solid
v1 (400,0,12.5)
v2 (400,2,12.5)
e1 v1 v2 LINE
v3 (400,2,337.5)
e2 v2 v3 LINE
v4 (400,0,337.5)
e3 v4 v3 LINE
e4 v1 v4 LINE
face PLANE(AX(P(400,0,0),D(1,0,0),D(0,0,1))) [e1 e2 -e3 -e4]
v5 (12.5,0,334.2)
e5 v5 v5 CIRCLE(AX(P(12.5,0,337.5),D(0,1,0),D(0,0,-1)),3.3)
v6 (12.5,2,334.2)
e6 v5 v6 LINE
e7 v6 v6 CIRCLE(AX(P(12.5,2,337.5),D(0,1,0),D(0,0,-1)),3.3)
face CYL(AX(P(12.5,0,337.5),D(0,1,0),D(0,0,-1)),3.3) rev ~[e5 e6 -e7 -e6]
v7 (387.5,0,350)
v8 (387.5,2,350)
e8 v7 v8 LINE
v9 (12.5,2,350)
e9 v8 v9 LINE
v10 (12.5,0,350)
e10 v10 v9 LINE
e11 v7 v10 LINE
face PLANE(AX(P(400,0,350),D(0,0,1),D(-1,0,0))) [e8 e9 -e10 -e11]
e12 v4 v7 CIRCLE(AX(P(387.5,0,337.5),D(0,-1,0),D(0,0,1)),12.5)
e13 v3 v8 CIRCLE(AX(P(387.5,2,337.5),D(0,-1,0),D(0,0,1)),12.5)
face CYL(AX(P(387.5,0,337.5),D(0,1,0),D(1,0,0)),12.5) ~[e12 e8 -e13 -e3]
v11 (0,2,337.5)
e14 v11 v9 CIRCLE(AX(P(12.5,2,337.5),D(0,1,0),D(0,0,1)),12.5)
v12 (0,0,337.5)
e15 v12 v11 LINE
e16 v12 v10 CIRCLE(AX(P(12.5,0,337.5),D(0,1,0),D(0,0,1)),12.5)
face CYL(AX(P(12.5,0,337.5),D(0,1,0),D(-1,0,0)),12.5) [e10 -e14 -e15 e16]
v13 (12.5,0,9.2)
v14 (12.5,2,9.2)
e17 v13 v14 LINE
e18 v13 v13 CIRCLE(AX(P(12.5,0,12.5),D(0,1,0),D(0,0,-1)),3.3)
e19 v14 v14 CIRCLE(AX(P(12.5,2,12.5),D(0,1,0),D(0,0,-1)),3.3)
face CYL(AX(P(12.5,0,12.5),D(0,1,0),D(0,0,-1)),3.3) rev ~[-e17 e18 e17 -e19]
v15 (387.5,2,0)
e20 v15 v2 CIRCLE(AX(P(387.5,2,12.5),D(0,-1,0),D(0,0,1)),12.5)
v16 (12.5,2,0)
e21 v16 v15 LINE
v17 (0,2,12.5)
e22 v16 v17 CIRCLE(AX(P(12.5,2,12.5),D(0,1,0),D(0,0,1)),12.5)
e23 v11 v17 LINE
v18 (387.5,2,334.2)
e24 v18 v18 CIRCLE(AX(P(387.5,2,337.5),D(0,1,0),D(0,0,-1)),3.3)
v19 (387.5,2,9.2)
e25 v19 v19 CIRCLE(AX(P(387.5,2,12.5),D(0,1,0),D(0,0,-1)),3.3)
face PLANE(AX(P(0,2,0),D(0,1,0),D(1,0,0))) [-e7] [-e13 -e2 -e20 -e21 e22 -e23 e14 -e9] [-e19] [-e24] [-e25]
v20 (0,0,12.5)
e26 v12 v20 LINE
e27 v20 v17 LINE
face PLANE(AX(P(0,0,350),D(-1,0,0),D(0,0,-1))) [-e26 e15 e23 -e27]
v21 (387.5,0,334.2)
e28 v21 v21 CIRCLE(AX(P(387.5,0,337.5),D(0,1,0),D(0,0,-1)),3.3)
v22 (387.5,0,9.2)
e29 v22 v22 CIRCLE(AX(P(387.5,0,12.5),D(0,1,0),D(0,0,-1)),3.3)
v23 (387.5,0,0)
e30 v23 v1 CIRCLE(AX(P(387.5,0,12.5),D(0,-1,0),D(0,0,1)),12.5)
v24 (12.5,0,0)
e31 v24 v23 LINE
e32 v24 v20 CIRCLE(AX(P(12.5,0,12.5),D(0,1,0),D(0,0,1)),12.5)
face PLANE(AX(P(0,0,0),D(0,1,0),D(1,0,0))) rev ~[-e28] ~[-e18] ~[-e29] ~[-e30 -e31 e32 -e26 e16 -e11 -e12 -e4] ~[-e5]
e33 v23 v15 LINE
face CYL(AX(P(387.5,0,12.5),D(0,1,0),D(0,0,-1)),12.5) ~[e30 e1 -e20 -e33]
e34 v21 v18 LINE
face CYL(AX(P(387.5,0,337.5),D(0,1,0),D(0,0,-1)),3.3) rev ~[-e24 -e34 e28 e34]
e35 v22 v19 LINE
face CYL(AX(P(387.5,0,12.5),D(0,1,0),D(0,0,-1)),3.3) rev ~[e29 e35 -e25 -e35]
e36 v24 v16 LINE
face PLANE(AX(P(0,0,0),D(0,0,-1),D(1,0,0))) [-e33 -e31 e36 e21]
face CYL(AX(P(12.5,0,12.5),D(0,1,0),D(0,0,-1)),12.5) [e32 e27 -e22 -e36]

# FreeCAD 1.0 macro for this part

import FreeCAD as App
import Part
import Sketcher
Q = App.Units.Quantity


def edges_at(feature, points):
    """Names of the edges that pass closest to the given points."""
    edges = feature.Shape.Edges
    near = lambda p: min(range(len(edges)), key=lambda i: edges[i].distToShape(Part.Vertex(*p))[0])
    return sorted({f"Edge{near(p) + 1}" for p in points})


def add_polygon(sketch, points):
    """Adds a closed chain of lines whose ends are joined by coincident constraints."""
    first, n = sketch.GeometryCount, len(points)
    for a, b in zip(points, points[1:] + points[:1]):
        sketch.addGeometry(Part.LineSegment(App.Vector(*a, 0), App.Vector(*b, 0)), False)
    for i in range(n):
        sketch.addConstraint(Sketcher.Constraint("Coincident", first + i, 2, first + (i + 1) % n, 1))

doc = App.newDocument("Part")
body = doc.addObject("PartDesign::Body", "Body")

# Sketch on XZ plane
sketch1 = doc.addObject("Sketcher::SketchObject", "Sketch")
body.addObject(sketch1)
sketch1.AttachmentSupport = (doc.XZ_Plane, [""])
sketch1.MapMode = "FlatFace"
add_polygon(sketch1, [(400, 0), (0, 0), (0, 350), (400, 350)])  # lines 0-3
sketch1.addConstraint([
    Sketcher.Constraint("Horizontal", 0),
    Sketcher.Constraint("Vertical", 1),
    Sketcher.Constraint("Horizontal", 2),
    Sketcher.Constraint("Vertical", 3),
    Sketcher.Constraint("Coincident", 0, 2, -1, 1),
    Sketcher.Constraint("DistanceX", 0, 2, 0, 1, Q("400 mm")),
    Sketcher.Constraint("DistanceY", 1, 1, 1, 2, Q("350 mm")),
])
pad1 = doc.addObject("PartDesign::Pad", "Pad")
body.addObject(pad1)
pad1.Profile = sketch1
pad1.Length = 2
pad1.Reversed = True

# Sketch on XZ plane
sketch2 = doc.addObject("Sketcher::SketchObject", "Sketch001")
body.addObject(sketch2)
sketch2.AttachmentSupport = (doc.XZ_Plane, [""])
sketch2.MapMode = "FlatFace"
sketch2.addGeometry([
    Part.Circle(App.Vector(12.5, 337.5, 0), App.Vector(0, 0, 1), 3.3),
    Part.Circle(App.Vector(387.5, 337.5, 0), App.Vector(0, 0, 1), 3.3),
    Part.Circle(App.Vector(12.5, 12.5, 0), App.Vector(0, 0, 1), 3.3),
    Part.Circle(App.Vector(387.5, 12.5, 0), App.Vector(0, 0, 1), 3.3),
], False)
sketch2.addConstraint([
    Sketcher.Constraint("Equal", 0, 1),
    Sketcher.Constraint("Equal", 1, 2),
    Sketcher.Constraint("Equal", 2, 3),
    Sketcher.Constraint("Horizontal", 0, 3, 1, 3),
    Sketcher.Constraint("Horizontal", 2, 3, 3, 3),
    Sketcher.Constraint("Vertical", 0, 3, 2, 3),
    Sketcher.Constraint("Vertical", 1, 3, 3, 3),
    Sketcher.Constraint("Diameter", 0, Q("6.6 mm")),
    Sketcher.Constraint("DistanceX", 0, 3, 1, 3, Q("375 mm")),
    Sketcher.Constraint("DistanceY", 2, 3, 0, 3, Q("325 mm")),
    Sketcher.Constraint("DistanceX", -1, 1, 0, 3, Q("12.5 mm")),
    Sketcher.Constraint("DistanceY", -1, 1, 0, 3, Q("337.5 mm")),
])
doc.recompute()
hole = doc.addObject("PartDesign::Hole", "Hole")
body.addObject(hole)
hole.Profile = sketch2
hole.ThreadType = "None"
hole.Diameter = 6.6
hole.DepthType = "ThroughAll"
doc.recompute()

fillet = doc.addObject("PartDesign::Fillet", "Fillet")
body.addObject(fillet)
fillet.Base = (hole, edges_at(hole, [
    (0, 1, 350),
    (400, 1, 350),
    (400, 1, 0),
    (0, 1, 0),
]))
fillet.Radius = 12.5

doc.recompute()
